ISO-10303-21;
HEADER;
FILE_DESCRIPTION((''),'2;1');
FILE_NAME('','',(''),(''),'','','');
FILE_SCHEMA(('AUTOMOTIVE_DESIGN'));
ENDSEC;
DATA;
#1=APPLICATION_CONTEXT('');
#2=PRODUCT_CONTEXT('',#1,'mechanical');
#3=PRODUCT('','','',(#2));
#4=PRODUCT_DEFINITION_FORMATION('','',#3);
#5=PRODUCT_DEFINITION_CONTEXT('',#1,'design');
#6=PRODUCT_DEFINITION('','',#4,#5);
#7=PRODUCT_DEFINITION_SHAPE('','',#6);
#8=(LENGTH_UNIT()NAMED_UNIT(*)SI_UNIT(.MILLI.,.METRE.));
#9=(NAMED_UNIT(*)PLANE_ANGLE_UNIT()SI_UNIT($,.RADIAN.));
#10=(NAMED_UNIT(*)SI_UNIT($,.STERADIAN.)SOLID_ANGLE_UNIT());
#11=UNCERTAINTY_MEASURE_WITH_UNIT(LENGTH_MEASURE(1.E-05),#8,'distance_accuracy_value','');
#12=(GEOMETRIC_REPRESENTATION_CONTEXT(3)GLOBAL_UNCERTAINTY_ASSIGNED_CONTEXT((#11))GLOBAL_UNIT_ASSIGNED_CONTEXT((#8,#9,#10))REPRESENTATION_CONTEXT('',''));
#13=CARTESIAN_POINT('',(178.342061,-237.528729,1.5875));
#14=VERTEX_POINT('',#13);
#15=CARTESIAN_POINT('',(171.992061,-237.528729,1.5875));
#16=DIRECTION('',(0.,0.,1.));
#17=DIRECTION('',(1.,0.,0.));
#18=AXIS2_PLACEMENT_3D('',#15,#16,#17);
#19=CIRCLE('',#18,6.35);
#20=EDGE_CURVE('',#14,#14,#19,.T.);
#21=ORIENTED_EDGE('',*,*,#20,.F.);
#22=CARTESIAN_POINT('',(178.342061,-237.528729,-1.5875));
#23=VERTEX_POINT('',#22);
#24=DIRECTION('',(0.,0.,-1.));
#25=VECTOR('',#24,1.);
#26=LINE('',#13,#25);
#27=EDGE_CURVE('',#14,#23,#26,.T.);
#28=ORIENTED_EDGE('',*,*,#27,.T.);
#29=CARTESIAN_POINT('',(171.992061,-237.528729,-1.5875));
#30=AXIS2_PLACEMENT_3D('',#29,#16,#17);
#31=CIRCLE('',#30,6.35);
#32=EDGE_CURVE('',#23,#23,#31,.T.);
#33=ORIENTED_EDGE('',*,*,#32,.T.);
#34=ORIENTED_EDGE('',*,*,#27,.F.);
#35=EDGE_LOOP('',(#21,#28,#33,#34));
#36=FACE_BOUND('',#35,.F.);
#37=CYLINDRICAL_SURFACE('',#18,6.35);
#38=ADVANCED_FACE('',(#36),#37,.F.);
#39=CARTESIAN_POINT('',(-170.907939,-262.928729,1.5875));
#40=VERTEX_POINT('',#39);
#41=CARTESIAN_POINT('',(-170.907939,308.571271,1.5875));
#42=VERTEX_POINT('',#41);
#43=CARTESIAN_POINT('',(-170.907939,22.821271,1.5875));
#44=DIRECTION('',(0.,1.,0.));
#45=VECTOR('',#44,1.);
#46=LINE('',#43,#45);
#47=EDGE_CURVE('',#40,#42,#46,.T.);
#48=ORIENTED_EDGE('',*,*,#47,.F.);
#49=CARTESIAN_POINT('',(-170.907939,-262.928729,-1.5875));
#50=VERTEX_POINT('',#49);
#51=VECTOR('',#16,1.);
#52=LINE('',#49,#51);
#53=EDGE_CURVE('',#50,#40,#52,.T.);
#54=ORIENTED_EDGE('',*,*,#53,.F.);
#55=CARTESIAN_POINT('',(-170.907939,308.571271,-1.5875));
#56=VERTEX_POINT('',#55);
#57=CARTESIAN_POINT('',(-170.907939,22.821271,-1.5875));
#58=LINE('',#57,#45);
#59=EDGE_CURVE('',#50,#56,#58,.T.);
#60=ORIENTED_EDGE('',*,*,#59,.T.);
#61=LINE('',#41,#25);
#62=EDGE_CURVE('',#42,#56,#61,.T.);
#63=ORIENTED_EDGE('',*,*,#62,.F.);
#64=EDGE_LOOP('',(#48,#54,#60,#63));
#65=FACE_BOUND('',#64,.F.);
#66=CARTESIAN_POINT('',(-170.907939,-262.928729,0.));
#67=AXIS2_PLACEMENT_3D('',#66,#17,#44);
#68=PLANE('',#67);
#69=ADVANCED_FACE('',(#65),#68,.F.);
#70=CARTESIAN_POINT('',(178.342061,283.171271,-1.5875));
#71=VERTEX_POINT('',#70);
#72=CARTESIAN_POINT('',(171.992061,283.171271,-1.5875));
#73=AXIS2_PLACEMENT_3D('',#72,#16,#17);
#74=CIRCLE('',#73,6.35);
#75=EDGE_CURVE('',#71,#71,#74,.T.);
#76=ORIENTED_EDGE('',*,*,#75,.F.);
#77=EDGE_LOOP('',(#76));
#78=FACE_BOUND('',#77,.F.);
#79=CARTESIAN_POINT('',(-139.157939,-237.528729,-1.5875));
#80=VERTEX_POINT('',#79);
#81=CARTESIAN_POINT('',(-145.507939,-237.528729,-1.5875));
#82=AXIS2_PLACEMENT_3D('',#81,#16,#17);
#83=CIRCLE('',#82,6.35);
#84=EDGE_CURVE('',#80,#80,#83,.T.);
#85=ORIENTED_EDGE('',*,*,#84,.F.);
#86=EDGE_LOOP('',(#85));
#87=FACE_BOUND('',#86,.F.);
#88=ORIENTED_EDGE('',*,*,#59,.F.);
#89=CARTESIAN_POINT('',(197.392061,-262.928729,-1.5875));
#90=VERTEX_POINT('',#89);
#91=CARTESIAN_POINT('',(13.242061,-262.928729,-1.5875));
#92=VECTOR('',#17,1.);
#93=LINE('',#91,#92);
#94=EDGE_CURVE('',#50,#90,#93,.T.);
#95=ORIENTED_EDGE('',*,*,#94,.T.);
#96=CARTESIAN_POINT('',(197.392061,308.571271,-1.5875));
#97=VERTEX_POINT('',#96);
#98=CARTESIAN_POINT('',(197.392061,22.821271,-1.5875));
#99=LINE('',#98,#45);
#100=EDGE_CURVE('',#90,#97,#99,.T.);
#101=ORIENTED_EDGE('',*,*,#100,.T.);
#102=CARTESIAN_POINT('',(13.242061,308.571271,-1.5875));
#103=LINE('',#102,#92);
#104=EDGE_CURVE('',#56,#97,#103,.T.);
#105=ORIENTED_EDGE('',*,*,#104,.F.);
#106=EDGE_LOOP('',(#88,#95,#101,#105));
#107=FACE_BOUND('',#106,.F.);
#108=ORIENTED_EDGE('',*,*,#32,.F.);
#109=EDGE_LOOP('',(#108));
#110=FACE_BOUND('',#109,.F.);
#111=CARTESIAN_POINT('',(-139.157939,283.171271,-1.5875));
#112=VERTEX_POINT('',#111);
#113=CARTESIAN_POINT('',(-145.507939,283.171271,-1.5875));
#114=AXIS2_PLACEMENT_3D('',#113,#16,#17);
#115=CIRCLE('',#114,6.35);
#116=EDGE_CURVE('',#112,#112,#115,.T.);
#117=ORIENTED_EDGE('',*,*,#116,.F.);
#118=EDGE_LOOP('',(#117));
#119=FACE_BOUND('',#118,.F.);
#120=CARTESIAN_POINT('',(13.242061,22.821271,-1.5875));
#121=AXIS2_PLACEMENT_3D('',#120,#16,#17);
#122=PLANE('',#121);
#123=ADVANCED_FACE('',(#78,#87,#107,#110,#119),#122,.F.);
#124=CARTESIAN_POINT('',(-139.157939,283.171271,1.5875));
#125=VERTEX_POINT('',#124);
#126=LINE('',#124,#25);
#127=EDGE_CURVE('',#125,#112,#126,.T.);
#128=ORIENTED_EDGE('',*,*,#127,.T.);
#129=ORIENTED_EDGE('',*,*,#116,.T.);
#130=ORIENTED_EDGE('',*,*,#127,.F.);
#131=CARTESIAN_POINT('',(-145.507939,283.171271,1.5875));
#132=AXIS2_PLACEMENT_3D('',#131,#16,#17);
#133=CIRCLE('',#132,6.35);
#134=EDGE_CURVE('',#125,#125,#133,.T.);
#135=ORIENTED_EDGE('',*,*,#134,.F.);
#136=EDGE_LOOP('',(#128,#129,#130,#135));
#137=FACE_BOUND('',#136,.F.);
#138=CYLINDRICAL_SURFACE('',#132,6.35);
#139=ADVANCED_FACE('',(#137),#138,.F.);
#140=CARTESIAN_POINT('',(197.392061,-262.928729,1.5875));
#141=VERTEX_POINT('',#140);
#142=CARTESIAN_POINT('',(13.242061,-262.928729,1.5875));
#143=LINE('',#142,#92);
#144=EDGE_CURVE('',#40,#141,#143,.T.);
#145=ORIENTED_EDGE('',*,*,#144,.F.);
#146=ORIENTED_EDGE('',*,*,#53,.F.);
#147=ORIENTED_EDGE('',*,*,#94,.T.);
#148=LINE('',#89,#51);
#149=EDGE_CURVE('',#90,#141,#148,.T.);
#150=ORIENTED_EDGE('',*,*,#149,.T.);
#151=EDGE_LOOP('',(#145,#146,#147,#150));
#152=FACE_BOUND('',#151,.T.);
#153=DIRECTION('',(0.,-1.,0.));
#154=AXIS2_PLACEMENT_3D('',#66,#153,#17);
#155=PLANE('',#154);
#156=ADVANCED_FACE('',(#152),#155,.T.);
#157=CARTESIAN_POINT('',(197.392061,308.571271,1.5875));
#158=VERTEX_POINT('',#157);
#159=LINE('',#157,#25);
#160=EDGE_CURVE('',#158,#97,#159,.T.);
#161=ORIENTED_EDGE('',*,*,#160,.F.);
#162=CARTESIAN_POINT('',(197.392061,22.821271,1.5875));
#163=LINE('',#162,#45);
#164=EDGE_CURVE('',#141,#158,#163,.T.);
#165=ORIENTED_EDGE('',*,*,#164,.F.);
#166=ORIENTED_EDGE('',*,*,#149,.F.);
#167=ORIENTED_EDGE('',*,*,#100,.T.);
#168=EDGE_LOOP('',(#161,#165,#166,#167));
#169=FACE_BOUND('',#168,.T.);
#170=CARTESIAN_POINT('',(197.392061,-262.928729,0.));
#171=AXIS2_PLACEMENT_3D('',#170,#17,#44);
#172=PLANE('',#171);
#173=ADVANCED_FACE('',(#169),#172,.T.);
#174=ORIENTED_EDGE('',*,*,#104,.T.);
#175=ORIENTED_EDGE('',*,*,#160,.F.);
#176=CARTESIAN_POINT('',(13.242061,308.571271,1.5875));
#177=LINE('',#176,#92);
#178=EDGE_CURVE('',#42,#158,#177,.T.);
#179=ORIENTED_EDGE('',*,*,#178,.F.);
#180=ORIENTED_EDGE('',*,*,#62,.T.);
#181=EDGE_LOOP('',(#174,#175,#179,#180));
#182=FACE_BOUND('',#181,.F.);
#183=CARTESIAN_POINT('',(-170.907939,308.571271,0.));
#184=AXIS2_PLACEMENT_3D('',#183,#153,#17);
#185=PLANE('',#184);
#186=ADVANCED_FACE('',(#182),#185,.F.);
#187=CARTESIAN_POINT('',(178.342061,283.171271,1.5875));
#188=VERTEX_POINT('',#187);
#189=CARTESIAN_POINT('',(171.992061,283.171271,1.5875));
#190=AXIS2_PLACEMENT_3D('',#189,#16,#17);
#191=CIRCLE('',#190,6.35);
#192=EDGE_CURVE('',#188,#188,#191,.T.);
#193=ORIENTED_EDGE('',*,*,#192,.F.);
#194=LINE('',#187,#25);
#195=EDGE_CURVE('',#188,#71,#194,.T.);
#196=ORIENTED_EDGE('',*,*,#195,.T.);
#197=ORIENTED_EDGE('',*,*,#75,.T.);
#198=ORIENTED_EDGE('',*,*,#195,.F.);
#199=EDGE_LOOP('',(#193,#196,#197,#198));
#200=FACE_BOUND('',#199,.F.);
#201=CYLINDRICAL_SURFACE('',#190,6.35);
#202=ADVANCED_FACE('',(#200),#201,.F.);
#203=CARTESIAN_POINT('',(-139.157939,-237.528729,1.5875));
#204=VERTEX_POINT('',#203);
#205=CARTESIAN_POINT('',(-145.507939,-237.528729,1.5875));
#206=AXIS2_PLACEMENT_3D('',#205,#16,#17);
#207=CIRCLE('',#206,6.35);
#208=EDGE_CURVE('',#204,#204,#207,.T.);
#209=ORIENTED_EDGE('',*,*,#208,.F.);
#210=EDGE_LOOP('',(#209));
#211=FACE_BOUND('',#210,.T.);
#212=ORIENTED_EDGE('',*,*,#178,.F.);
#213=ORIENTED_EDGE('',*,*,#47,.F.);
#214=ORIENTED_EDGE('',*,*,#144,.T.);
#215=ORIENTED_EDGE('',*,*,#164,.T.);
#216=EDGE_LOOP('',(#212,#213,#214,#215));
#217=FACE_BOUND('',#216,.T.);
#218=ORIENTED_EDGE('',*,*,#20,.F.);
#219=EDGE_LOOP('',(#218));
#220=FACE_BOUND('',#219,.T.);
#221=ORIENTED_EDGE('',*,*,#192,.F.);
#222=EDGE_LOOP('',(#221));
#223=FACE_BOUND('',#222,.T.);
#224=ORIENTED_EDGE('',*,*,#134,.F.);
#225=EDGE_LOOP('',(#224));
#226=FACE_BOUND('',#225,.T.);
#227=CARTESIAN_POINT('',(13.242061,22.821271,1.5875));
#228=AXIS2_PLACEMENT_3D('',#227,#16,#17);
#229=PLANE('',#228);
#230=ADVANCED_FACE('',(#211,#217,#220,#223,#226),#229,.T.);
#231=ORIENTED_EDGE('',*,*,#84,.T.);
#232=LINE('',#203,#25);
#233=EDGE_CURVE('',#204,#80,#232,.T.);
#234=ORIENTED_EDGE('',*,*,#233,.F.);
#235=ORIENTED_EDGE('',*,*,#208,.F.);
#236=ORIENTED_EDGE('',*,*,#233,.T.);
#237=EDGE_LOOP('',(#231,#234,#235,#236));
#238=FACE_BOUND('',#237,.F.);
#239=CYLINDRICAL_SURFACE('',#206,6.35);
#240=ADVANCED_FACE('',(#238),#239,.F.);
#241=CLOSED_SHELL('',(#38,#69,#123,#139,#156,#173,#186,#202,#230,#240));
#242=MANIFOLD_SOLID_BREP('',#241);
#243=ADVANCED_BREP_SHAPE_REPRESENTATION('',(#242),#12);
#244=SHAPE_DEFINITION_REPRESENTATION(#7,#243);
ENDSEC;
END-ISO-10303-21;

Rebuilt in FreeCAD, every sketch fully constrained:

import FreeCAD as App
import Part
import Sketcher
Q = App.Units.Quantity

doc = App.newDocument("Part")
body = doc.addObject("PartDesign::Body", "Body")

# Sketch on XY plane
sketch1 = body.newObject("Sketcher::SketchObject", "Sketch")
sketch1.AttachmentSupport = (doc.getObject("XY_Plane"), [""])
sketch1.MapMode = "FlatFace"
sketch1.addGeometry([
    Part.LineSegment(App.Vector(-171, 309, 0), App.Vector(-171, -263, 0)),
    Part.LineSegment(App.Vector(-171, -263, 0), App.Vector(197, -263, 0)),
    Part.LineSegment(App.Vector(197, -263, 0), App.Vector(197, 309, 0)),
    Part.LineSegment(App.Vector(197, 309, 0), App.Vector(-171, 309, 0)),
], False)
sketch1.addConstraint([
    Sketcher.Constraint("Coincident", 0, 2, 1, 1),
    Sketcher.Constraint("Coincident", 1, 2, 2, 1),
    Sketcher.Constraint("Coincident", 2, 2, 3, 1),
    Sketcher.Constraint("Coincident", 3, 2, 0, 1),
    Sketcher.Constraint("Vertical", 0),
    Sketcher.Constraint("Horizontal", 1),
    Sketcher.Constraint("Vertical", 2),
    Sketcher.Constraint("Horizontal", 3),
    Sketcher.Constraint("DistanceX", 1, 1, 1, 2, Q("14.5 in")),
    Sketcher.Constraint("DistanceY", 0, 2, 0, 1, Q("22.5 in")),
    Sketcher.Constraint("DistanceX", 0, 2, -1, 1, Q("170.907939 mm")),
    Sketcher.Constraint("DistanceY", 0, 2, -1, 1, Q("262.928729 mm")),
])
pad1 = body.newObject("PartDesign::Pad", "Pad")
pad1.Profile = sketch1
pad1.Length = Q("0.125 in")
pad1.Midplane = True

# Sketch on XY plane
sketch2 = body.newObject("Sketcher::SketchObject", "Sketch001")
sketch2.AttachmentSupport = (doc.getObject("XY_Plane"), [""])
sketch2.MapMode = "FlatFace"
sketch2.AttachmentOffset = App.Placement(App.Vector(0, 0, 0.0625 * 25.4), App.Rotation())
sketch2.addGeometry([
    Part.Circle(App.Vector(172, 283, 0), App.Vector(0, 0, 1), 6),
    Part.Circle(App.Vector(-146, 283, 0), App.Vector(0, 0, 1), 6),
    Part.Circle(App.Vector(-146, -238, 0), App.Vector(0, 0, 1), 6),
    Part.Circle(App.Vector(172, -238, 0), App.Vector(0, 0, 1), 6),
], False)
sketch2.addConstraint([
    Sketcher.Constraint("Equal", 0, 1),
    Sketcher.Constraint("Equal", 1, 2),
    Sketcher.Constraint("Equal", 2, 3),
    Sketcher.Constraint("Horizontal", 0, 3, 1, 3),
    Sketcher.Constraint("Horizontal", 2, 3, 3, 3),
    Sketcher.Constraint("Vertical", 1, 3, 2, 3),
    Sketcher.Constraint("Vertical", 0, 3, 3, 3),
    Sketcher.Constraint("Diameter", 0, Q("0.5 in")),
    Sketcher.Constraint("DistanceX", 1, 3, 0, 3, Q("12.5 in")),
    Sketcher.Constraint("DistanceY", 2, 3, 1, 3, Q("20.5 in")),
    Sketcher.Constraint("DistanceX", -1, 1, 0, 3, Q("171.992061 mm")),
    Sketcher.Constraint("DistanceY", -1, 1, 0, 3, Q("283.171271 mm")),
])
pocket1 = body.newObject("PartDesign::Pocket", "Pocket")
pocket1.Profile = sketch2
pocket1.Length = Q("1 in")

doc.recompute()
